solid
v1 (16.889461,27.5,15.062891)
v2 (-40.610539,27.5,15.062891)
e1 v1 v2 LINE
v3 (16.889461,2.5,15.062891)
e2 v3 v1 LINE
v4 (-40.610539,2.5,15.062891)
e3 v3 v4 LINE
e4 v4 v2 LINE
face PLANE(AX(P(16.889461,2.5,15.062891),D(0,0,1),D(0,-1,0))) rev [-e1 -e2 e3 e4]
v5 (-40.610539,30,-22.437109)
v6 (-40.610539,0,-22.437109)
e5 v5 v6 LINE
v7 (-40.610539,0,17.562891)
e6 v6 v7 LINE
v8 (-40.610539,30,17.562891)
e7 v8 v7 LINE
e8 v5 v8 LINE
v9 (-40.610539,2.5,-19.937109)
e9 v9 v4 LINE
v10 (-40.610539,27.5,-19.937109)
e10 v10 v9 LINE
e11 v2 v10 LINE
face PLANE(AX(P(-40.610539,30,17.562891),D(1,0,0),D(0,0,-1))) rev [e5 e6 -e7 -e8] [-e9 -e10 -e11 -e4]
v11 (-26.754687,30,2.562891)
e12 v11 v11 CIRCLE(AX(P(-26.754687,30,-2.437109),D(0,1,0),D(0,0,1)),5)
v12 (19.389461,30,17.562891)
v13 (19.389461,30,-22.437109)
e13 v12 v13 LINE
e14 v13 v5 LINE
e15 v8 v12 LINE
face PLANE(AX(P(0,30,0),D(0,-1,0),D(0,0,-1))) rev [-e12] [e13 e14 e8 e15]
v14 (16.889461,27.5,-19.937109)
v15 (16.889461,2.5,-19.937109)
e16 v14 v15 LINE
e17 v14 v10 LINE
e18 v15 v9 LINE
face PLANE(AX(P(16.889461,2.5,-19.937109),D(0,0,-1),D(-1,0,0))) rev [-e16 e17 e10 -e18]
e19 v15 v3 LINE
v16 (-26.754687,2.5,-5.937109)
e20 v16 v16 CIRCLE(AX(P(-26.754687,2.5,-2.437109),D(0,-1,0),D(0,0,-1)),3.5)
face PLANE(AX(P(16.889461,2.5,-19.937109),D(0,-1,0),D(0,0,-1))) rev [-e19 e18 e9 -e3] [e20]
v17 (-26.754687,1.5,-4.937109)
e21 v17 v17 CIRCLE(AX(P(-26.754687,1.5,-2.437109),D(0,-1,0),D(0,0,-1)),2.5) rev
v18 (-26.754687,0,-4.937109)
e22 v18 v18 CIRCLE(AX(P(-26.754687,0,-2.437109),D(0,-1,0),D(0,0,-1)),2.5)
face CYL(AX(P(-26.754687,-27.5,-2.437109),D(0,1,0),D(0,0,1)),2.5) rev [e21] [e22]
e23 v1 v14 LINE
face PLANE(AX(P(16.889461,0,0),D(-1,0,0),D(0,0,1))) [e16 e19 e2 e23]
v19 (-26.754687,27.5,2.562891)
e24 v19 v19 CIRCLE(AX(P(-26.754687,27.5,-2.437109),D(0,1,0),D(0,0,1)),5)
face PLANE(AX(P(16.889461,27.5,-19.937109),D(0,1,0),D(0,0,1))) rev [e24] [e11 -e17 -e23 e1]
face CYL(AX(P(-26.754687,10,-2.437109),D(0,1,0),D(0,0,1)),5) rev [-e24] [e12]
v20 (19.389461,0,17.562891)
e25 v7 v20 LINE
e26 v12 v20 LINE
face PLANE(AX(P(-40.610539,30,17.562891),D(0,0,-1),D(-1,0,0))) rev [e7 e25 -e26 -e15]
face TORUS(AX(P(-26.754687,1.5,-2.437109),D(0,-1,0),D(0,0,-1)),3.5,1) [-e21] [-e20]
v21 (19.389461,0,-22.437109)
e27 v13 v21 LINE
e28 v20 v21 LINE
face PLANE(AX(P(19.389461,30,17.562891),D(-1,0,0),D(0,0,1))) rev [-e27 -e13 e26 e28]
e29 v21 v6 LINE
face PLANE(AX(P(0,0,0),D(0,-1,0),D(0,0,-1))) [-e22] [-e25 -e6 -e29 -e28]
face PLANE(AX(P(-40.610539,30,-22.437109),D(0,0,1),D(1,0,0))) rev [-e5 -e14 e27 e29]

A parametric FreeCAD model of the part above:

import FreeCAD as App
import Part
import Sketcher

V = App.Vector
Q = App.Units.Quantity


def edges_at(feature, points):
    """Names of the edges that pass closest to the given points."""
    edges = feature.Shape.Edges
    near = lambda p: min(range(len(edges)), key=lambda i: edges[i].distToShape(Part.Vertex(*p))[0])
    return sorted({f"Edge{near(p) + 1}" for p in points})


def add_polygon(sketch, points):
    """Adds a closed chain of lines whose ends are joined by coincident constraints."""
    first, n = sketch.GeometryCount, len(points)
    for a, b in zip(points, points[1:] + points[:1]):
        sketch.addGeometry(Part.LineSegment(App.Vector(*a, 0), App.Vector(*b, 0)), False)
    for i in range(n):
        sketch.addConstraint(Sketcher.Constraint("Coincident", first + i, 2, first + (i + 1) % n, 1))

doc = App.newDocument("Part")
body = doc.addObject("PartDesign::Body", "Body")

sketch1 = body.newObject("Sketcher::SketchObject", "Sketch")
sketch1.AttachmentSupport = (doc.getObject("XZ_Plane"), [""])
sketch1.MapMode = "FlatFace"
add_polygon(sketch1, [(-41, -22), (-41, 18), (19, 18), (19, -22)])
sketch1.addConstraint([
    Sketcher.Constraint("Vertical", 0),
    Sketcher.Constraint("Horizontal", 1),
    Sketcher.Constraint("Vertical", 2),
    Sketcher.Constraint("Horizontal", 3),
    Sketcher.Constraint("DistanceX", 1, 1, 1, 2, Q("60 mm")),
    Sketcher.Constraint("DistanceY", 0, 1, 0, 2, Q("40 mm")),
    Sketcher.Constraint("DistanceX", 0, 2, -1, 1, Q("40.610539 mm")),
    Sketcher.Constraint("DistanceY", -1, 1, 0, 2, Q("17.562891 mm")),
])
pad1 = body.newObject("PartDesign::Pad", "Pad")
pad1.Profile = sketch1
pad1.Length = 30
pad1.Reversed = True

sketch2 = body.newObject("Sketcher::SketchObject", "Sketch001")
sketch2.AttachmentSupport = (doc.getObject("YZ_Plane"), [""])
sketch2.MapMode = "FlatFace"
sketch2.AttachmentOffset = App.Placement(V(0, 0, -40.610539), App.Rotation())
add_polygon(sketch2, [(39, -31), (-9, -31), (-9, 26), (39, 26)])
add_polygon(sketch2, [(0, 18), (0, -22), (30, -22), (30, 18)])
add_polygon(sketch2, [(28, -20), (2, -20), (2, 15), (28, 15)])
sketch2.addConstraint([
    Sketcher.Constraint("Horizontal", 0),
    Sketcher.Constraint("Vertical", 1),
    Sketcher.Constraint("Horizontal", 2),
    Sketcher.Constraint("Vertical", 3),
    Sketcher.Constraint("Vertical", 4),
    Sketcher.Constraint("Horizontal", 5),
    Sketcher.Constraint("Vertical", 6),
    Sketcher.Constraint("Horizontal", 7),
    Sketcher.Constraint("Horizontal", 8),
    Sketcher.Constraint("Vertical", 9),
    Sketcher.Constraint("Horizontal", 10),
    Sketcher.Constraint("Vertical", 11),
    Sketcher.Constraint("PointOnObject", 4, 2, -2),
    Sketcher.Constraint("DistanceX", 5, 1, 5, 2, Q("30 mm")),
    Sketcher.Constraint("DistanceX", 8, 2, 8, 1, Q("25 mm")),
    Sketcher.Constraint("DistanceY", 4, 2, 4, 1, Q("40 mm")),
    Sketcher.Constraint("DistanceY", 9, 1, 9, 2, Q("35 mm")),
    Sketcher.Constraint("DistanceX", 0, 2, 0, 1, Q("47.62 mm")),
    Sketcher.Constraint("DistanceY", 1, 1, 1, 2, Q("57.62 mm")),
    Sketcher.Constraint("DistanceX", -1, 1, 8, 2, Q("2.5 mm")),
    Sketcher.Constraint("DistanceY", 4, 2, 8, 2, Q("2.5 mm")),
    Sketcher.Constraint("DistanceX", 0, 2, -1, 1, Q("8.81 mm")),
    Sketcher.Constraint("DistanceY", 0, 2, -1, 1, Q("31.247 mm")),
    Sketcher.Constraint("DistanceY", 4, 2, -1, 1, Q("22.437109 mm")),
])
pocket1 = body.newObject("PartDesign::Pocket", "Pocket")
pocket1.Profile = sketch2
pocket1.Length = 57.5
pocket1.Reversed = True

sketch3 = body.newObject("Sketcher::SketchObject", "Sketch002")
sketch3.AttachmentSupport = (doc.getObject("XZ_Plane"), [""])
sketch3.MapMode = "FlatFace"
sketch3.AttachmentOffset = App.Placement(V(0, 0, -30), App.Rotation())
sketch3.addGeometry(Part.Circle(V(-26.8, -2.4, 0), V(0, 0, 1), 2.5), False)
sketch3.addConstraint([
    Sketcher.Constraint("Diameter", 0, Q("5 mm")),
    Sketcher.Constraint("DistanceY", 0, 3, -1, 1, Q("2.437109 mm")),
    Sketcher.Constraint("DistanceX", 0, 3, -1, 1, Q("26.754687 mm")),
])
pocket2 = body.newObject("PartDesign::Pocket", "Pocket001")
pocket2.Profile = sketch3
pocket2.Length = 57.5
pocket2.Reversed = True
doc.recompute()

fillet = body.newObject("PartDesign::Fillet", "Fillet")
fillet.Base = (pocket2, edges_at(pocket2, [(-26.755, 2.5, -4.937)]))
fillet.Radius = 1

sketch4 = body.newObject("Sketcher::SketchObject", "Sketch003")
sketch4.AttachmentSupport = (doc.getObject("XZ_Plane"), [""])
sketch4.MapMode = "FlatFace"
sketch4.AttachmentOffset = App.Placement(V(0, 0, -30), App.Rotation())
sketch4.addGeometry(Part.Circle(V(-27, -2, 0), V(0, 0, 1), 5), False)
sketch4.addConstraint([
    Sketcher.Constraint("Diameter", 0, Q("10 mm")),
    Sketcher.Constraint("DistanceY", 0, 3, -1, 1, Q("2.437109 mm")),
    Sketcher.Constraint("DistanceX", 0, 3, -1, 1, Q("26.754687 mm")),
])
pocket3 = body.newObject("PartDesign::Pocket", "Pocket002")
pocket3.Profile = sketch4
pocket3.Length = 20
pocket3.Reversed = True

doc.recompute()
